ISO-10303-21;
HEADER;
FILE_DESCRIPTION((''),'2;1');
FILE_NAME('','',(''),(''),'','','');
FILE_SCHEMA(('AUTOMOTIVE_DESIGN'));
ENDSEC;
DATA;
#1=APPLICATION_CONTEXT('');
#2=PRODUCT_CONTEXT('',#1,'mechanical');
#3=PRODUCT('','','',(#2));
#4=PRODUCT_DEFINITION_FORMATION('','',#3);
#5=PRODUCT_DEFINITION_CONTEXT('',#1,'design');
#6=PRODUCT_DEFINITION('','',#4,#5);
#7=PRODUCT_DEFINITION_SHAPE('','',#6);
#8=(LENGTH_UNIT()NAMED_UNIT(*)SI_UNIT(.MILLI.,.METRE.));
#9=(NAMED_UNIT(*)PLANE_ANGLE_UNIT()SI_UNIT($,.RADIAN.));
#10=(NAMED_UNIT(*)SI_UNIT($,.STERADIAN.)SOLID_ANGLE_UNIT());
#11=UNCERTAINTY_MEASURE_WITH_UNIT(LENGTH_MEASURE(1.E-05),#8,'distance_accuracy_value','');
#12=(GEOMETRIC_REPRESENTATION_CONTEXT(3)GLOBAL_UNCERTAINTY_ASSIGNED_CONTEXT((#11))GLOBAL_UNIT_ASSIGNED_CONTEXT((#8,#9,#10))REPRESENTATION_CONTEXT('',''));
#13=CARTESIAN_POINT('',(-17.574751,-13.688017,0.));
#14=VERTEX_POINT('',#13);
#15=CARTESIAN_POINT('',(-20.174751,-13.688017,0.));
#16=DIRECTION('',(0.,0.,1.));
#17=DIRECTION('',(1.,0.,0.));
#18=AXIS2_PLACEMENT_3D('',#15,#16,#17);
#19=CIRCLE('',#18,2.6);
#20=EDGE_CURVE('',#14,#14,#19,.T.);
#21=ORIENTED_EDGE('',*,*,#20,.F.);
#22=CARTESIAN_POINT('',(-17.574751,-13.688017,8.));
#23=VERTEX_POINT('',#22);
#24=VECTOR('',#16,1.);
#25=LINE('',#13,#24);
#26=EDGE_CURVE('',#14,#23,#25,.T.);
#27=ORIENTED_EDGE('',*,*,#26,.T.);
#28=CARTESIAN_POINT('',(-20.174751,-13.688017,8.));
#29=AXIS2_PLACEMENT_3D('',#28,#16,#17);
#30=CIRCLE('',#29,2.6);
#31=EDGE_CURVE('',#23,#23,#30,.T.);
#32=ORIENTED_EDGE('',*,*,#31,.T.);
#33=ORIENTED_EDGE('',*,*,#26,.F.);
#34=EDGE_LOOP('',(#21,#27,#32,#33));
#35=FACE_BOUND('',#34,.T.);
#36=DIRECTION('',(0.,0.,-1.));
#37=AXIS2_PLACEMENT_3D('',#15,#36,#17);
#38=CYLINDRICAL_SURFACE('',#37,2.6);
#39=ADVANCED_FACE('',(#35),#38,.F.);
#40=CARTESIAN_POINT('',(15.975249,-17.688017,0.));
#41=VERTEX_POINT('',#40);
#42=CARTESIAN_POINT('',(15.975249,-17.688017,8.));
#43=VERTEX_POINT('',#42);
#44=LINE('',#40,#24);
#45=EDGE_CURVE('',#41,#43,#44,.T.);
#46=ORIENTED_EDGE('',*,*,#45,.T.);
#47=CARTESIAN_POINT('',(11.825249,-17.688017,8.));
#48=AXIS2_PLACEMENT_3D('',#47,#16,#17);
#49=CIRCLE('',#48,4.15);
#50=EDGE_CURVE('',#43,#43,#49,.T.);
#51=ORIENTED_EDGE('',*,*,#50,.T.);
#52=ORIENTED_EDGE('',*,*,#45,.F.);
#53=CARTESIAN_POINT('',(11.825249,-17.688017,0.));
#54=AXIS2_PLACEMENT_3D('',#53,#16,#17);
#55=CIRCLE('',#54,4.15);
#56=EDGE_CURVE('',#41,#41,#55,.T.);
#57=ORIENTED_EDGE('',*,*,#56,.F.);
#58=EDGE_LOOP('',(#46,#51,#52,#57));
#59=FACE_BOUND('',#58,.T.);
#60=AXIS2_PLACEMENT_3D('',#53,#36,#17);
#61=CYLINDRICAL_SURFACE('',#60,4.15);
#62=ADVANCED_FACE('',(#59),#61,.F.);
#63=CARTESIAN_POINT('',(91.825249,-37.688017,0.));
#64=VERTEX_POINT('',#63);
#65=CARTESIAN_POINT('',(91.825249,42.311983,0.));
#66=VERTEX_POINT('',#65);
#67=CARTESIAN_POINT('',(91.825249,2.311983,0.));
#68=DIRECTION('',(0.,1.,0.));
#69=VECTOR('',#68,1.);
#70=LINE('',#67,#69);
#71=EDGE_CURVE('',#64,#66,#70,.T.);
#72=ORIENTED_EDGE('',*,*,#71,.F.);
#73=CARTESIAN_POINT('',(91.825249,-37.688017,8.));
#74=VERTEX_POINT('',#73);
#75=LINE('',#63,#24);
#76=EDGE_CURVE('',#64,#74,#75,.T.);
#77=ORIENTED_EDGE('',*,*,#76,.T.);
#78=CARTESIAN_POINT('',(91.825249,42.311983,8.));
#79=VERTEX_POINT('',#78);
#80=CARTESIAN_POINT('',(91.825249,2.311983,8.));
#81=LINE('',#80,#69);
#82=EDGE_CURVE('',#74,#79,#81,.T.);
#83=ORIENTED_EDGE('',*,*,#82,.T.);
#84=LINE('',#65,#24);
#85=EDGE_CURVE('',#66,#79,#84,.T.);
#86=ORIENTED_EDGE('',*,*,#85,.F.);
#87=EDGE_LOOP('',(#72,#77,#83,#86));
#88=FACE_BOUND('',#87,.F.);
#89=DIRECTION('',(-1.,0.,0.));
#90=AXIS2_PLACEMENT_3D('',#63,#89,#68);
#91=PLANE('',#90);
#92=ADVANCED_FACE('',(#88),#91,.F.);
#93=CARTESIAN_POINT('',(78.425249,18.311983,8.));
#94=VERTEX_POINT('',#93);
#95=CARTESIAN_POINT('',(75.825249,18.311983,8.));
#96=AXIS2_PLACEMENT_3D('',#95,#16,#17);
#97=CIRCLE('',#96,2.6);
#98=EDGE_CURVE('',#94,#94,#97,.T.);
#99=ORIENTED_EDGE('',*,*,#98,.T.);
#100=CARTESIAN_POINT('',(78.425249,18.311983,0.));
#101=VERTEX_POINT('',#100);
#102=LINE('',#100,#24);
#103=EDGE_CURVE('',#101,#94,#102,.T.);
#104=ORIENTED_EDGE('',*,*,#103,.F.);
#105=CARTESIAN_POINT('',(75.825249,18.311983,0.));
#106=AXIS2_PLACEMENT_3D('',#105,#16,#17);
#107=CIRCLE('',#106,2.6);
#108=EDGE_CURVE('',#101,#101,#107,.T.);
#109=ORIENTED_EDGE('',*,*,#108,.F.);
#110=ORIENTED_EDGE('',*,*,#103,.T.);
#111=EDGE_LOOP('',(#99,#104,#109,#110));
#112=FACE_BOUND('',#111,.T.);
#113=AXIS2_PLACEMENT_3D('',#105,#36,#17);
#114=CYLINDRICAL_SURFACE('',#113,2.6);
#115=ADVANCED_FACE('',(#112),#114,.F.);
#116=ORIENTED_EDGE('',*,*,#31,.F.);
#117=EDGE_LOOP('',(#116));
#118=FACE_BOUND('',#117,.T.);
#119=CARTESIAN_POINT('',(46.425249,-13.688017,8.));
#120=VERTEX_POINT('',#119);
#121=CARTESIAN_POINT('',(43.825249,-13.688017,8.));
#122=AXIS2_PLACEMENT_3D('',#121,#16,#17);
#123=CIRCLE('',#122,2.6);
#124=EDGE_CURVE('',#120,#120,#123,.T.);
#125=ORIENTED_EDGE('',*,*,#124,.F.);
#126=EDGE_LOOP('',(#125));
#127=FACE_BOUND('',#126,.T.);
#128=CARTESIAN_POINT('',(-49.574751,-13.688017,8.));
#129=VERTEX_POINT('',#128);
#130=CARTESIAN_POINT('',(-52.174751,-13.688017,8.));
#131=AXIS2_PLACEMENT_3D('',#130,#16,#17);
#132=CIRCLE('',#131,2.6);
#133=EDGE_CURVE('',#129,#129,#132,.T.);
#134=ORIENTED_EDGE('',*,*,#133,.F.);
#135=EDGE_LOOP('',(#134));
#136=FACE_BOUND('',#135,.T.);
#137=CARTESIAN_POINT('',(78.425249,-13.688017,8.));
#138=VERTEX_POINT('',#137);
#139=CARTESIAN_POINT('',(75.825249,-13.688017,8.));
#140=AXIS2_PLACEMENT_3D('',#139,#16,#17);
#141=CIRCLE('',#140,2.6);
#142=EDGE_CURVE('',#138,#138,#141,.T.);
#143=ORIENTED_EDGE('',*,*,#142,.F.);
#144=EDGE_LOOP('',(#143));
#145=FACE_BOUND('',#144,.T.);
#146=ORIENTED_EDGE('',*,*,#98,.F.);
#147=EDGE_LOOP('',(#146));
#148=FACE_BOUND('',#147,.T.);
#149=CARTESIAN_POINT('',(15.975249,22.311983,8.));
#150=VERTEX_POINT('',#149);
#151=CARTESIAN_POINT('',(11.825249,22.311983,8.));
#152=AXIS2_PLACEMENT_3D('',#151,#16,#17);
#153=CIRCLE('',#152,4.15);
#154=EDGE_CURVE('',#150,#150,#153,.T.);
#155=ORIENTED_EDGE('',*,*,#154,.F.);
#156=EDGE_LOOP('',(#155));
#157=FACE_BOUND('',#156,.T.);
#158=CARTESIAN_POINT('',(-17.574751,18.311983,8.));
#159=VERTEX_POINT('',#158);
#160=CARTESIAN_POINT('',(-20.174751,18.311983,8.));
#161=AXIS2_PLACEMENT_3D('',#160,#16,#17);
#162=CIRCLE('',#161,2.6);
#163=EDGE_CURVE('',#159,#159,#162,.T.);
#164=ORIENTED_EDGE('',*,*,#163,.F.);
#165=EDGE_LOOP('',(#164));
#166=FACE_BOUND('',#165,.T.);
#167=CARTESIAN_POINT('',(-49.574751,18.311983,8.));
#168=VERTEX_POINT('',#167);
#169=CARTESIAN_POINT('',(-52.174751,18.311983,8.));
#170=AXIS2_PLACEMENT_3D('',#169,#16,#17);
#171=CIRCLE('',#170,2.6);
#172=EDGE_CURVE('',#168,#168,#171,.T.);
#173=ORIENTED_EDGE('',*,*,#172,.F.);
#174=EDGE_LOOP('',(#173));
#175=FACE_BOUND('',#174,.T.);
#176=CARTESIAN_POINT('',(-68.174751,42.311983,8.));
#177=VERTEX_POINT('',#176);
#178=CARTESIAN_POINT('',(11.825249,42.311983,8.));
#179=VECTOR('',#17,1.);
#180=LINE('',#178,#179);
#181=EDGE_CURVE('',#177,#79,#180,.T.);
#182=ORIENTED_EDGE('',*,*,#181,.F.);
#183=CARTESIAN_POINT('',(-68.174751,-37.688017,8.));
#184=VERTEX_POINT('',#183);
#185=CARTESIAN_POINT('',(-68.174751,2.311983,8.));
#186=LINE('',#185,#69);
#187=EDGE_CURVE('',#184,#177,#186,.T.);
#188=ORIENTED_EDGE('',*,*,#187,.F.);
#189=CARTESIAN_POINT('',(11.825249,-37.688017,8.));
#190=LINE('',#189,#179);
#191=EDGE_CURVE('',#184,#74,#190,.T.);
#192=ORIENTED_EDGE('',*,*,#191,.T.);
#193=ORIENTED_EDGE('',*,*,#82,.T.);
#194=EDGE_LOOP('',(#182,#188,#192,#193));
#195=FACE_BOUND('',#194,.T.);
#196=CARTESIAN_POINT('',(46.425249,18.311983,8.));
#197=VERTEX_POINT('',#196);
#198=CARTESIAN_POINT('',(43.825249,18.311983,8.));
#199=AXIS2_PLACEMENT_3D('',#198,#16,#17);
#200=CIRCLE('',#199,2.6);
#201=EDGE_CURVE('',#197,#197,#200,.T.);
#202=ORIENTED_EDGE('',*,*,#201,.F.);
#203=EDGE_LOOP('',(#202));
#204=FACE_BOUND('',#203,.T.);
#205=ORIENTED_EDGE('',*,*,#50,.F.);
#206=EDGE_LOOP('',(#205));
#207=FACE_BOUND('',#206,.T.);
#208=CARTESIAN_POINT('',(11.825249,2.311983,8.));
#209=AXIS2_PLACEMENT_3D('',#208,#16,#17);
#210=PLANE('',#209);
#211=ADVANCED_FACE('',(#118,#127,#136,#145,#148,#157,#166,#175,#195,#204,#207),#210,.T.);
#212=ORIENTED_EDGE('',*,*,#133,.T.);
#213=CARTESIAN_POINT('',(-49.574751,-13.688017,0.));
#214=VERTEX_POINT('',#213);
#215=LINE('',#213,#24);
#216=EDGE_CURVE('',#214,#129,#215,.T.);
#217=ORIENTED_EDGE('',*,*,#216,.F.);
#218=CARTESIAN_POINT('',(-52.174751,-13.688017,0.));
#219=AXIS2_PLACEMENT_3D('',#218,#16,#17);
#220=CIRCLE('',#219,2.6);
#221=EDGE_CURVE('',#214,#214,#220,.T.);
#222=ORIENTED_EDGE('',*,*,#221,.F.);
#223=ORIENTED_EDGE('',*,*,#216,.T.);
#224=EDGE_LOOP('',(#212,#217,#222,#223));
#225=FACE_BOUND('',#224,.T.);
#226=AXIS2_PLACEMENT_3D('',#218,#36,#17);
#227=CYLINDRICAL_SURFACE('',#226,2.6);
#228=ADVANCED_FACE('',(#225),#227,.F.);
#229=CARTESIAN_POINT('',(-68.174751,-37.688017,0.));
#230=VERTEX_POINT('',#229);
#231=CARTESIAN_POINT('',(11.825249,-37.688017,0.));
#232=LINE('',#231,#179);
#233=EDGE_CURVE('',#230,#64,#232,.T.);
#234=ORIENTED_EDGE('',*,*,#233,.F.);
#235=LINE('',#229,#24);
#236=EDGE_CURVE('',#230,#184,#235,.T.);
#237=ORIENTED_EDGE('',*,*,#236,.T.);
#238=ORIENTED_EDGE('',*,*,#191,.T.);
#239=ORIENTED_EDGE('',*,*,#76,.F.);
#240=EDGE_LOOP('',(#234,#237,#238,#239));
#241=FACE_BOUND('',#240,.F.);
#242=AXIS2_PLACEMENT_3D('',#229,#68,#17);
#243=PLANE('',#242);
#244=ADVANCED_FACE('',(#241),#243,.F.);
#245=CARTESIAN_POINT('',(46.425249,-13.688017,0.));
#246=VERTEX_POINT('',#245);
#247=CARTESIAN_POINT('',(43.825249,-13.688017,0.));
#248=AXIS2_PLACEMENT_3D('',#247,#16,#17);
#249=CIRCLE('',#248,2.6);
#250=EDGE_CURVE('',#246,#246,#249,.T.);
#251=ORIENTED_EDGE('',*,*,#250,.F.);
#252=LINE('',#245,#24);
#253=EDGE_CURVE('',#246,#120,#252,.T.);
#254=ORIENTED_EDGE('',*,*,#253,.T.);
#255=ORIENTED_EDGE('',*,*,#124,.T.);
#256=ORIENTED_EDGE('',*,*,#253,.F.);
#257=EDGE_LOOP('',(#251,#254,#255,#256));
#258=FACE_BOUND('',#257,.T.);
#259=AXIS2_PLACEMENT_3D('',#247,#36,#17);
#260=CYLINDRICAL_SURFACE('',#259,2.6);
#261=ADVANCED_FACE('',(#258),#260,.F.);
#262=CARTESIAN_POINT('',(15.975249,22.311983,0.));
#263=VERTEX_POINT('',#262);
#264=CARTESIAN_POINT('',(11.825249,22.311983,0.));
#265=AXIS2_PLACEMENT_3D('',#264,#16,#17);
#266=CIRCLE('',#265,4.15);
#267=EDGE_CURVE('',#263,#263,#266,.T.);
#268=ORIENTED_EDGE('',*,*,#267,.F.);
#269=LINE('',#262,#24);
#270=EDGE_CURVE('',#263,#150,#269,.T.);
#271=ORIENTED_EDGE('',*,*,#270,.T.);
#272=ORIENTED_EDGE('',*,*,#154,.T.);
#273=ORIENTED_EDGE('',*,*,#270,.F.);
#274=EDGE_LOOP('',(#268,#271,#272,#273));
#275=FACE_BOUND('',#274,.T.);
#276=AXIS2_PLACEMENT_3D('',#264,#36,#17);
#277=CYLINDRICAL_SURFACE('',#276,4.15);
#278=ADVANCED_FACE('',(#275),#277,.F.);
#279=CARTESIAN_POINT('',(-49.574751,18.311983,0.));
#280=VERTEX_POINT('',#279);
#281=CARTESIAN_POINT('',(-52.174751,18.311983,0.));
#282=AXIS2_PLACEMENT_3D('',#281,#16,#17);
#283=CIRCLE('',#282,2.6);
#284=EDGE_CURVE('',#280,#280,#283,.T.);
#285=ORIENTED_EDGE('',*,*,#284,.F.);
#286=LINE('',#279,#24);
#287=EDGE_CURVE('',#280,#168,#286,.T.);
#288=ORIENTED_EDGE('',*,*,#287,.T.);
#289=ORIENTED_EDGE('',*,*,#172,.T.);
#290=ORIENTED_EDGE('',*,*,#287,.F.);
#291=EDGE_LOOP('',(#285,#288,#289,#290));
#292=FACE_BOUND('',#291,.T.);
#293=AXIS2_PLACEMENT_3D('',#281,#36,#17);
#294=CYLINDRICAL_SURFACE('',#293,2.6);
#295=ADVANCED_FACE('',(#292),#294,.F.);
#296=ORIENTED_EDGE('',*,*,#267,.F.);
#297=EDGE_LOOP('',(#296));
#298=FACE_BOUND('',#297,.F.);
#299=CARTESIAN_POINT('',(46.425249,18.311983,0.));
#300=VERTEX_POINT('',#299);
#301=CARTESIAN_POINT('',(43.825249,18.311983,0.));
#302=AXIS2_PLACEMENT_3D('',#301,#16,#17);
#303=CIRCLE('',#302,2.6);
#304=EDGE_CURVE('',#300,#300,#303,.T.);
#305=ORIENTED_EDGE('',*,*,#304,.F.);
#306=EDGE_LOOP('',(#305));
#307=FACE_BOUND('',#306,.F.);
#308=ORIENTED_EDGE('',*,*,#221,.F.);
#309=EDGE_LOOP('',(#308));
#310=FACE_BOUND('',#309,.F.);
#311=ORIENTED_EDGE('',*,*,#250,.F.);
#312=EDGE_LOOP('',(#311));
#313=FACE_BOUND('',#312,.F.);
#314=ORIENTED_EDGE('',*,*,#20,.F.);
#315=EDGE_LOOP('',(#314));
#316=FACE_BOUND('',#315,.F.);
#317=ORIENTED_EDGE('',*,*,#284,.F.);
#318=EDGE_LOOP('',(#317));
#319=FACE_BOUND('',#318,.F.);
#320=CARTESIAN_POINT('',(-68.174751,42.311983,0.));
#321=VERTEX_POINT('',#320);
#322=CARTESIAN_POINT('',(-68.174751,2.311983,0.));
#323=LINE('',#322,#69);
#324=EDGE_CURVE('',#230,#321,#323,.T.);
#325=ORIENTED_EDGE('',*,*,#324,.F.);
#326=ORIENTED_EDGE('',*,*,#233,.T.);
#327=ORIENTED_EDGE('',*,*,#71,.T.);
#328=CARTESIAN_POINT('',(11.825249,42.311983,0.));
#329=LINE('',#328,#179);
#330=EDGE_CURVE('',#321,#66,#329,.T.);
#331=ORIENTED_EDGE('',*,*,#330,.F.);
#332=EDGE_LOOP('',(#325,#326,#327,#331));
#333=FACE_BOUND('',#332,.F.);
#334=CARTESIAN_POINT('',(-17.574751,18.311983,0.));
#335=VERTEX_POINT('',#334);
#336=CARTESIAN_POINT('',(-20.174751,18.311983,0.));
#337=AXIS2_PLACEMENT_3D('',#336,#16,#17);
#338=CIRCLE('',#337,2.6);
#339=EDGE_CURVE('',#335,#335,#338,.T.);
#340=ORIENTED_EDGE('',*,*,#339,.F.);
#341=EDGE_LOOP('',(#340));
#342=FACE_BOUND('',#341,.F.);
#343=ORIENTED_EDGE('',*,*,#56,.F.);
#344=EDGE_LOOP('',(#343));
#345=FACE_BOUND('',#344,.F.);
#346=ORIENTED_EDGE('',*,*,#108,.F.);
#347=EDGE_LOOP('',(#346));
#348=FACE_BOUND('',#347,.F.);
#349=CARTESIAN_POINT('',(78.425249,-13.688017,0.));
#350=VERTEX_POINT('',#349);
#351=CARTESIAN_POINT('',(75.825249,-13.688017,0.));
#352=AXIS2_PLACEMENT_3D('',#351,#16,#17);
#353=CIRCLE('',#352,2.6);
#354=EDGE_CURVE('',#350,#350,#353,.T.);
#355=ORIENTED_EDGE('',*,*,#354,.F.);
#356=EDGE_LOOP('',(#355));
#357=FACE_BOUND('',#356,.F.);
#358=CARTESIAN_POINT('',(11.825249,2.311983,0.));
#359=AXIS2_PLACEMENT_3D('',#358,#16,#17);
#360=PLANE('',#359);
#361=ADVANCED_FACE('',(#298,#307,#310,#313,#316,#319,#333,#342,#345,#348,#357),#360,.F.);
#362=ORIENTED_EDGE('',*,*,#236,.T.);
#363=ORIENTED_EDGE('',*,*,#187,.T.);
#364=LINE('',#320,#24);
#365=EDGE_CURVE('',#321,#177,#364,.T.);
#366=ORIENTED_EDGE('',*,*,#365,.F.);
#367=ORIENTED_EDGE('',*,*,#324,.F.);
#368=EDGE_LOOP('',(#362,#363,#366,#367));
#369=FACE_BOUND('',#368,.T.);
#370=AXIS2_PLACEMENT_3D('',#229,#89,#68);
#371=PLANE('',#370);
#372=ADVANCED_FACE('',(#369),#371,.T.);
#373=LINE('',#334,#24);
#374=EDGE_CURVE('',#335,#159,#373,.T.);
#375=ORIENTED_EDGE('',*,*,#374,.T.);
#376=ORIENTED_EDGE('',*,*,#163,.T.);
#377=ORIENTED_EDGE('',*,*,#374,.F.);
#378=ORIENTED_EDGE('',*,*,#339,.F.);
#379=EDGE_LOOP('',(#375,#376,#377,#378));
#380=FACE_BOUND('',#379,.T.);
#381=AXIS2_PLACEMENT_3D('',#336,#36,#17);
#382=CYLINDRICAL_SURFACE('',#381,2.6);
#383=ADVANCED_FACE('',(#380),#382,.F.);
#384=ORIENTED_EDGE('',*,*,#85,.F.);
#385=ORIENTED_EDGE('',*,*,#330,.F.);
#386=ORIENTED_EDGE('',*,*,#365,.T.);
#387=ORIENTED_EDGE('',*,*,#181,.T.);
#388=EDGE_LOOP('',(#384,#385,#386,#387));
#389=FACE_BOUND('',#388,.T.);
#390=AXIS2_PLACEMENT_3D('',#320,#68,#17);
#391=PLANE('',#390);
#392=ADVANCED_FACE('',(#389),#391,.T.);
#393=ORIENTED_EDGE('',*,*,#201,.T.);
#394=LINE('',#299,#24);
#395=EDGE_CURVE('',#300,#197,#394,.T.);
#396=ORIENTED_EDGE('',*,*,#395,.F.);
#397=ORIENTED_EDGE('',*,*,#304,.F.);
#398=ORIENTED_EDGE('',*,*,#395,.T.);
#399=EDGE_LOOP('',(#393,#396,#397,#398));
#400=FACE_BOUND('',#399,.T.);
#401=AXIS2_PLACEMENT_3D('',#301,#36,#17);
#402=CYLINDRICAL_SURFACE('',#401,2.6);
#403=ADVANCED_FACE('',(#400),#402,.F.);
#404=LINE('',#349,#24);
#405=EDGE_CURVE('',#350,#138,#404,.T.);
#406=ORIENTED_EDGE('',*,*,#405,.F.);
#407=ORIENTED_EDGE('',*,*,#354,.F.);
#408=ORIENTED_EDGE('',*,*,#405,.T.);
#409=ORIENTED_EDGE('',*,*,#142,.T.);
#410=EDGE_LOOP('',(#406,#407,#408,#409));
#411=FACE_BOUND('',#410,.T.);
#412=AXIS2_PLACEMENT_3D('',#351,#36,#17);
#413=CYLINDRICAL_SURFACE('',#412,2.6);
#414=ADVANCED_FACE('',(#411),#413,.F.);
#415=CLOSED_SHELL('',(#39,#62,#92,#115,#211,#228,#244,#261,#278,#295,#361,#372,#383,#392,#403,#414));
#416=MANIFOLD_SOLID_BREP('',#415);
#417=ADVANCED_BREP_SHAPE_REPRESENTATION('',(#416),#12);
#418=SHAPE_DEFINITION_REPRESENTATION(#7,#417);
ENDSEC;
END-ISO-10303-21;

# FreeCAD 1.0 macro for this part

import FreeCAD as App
import Part
import Sketcher

V = App.Vector


def add_polygon(sketch, points):
    """Adds a closed chain of lines whose ends are joined by coincident constraints."""
    first, n = sketch.GeometryCount, len(points)
    for a, b in zip(points, points[1:] + points[:1]):
        sketch.addGeometry(Part.LineSegment(App.Vector(*a, 0), App.Vector(*b, 0)), False)
    for i in range(n):
        sketch.addConstraint(Sketcher.Constraint("Coincident", first + i, 2, first + (i + 1) % n, 1))

doc = App.newDocument("Part")
params = doc.addObject("Spreadsheet::Sheet", "Params")
for row, (alias, value) in enumerate([
    ("sketch1_diameter", "5.2 mm"),
    ("sketch1_diameter2", "8.3 mm"),
    ("sketch1_width", "160 mm"),
    ("sketch1_height", "80 mm"),
    ("pad1_length", "8 mm"),
], start=1):
    params.set(f"A{row}", alias)
    params.set(f"B{row}", "=" + value)
    params.setAlias(f"B{row}", alias)

body = doc.addObject("PartDesign::Body", "Body")

sketch1 = body.newObject("Sketcher::SketchObject", "Sketch")
sketch1.AttachmentSupport = (doc.getObject("XY_Plane"), [""])
sketch1.MapMode = "FlatFace"
add_polygon(sketch1, [(-68.174751, 42.311983), (-68.174751, -37.688017), (91.825249, -37.688017), (91.825249, 42.311983)])
sketch1.addGeometry(Part.Circle(V(-52.174751, -13.688017, 0), V(0, 0, 1), 2.6), False)
sketch1.addGeometry(Part.Circle(V(-20.174751, -13.688017, 0), V(0, 0, 1), 2.6), False)
sketch1.addGeometry(Part.Circle(V(11.825249, -17.688017, 0), V(0, 0, 1), 4.15), False)
sketch1.addGeometry(Part.Circle(V(43.825249, -13.688017, 0), V(0, 0, 1), 2.6), False)
sketch1.addGeometry(Part.Circle(V(75.825249, -13.688017, 0), V(0, 0, 1), 2.6), False)
sketch1.addGeometry(Part.Circle(V(-52.174751, 18.311983, 0), V(0, 0, 1), 2.6), False)
sketch1.addGeometry(Part.Circle(V(-20.174751, 18.311983, 0), V(0, 0, 1), 2.6), False)
sketch1.addGeometry(Part.Circle(V(43.825249, 18.311983, 0), V(0, 0, 1), 2.6), False)
sketch1.addGeometry(Part.Circle(V(11.825249, 22.311983, 0), V(0, 0, 1), 4.15), False)
sketch1.addGeometry(Part.Circle(V(75.825249, 18.311983, 0), V(0, 0, 1), 2.6), False)
sketch1.addConstraint(Sketcher.Constraint("Vertical", 0))
sketch1.addConstraint(Sketcher.Constraint("Horizontal", 1))
sketch1.addConstraint(Sketcher.Constraint("Vertical", 2))
sketch1.addConstraint(Sketcher.Constraint("Horizontal", 3))
sketch1.addConstraint(Sketcher.Constraint("Equal", 4, 5))
sketch1.addConstraint(Sketcher.Constraint("Equal", 5, 7))
sketch1.addConstraint(Sketcher.Constraint("Equal", 7, 8))
sketch1.addConstraint(Sketcher.Constraint("Equal", 8, 9))
sketch1.addConstraint(Sketcher.Constraint("Equal", 9, 10))
sketch1.addConstraint(Sketcher.Constraint("Equal", 10, 11))
sketch1.addConstraint(Sketcher.Constraint("Equal", 6, 12))
sketch1.addConstraint(Sketcher.Constraint("Equal", 11, 13))
sketch1.addConstraint(Sketcher.Constraint("Horizontal", 4, 3, 5, 3))
sketch1.addConstraint(Sketcher.Constraint("Horizontal", 5, 3, 7, 3))
sketch1.addConstraint(Sketcher.Constraint("Horizontal", 7, 3, 8, 3))
sketch1.addConstraint(Sketcher.Constraint("Horizontal", 9, 3, 10, 3))
sketch1.addConstraint(Sketcher.Constraint("Horizontal", 10, 3, 11, 3))
sketch1.addConstraint(Sketcher.Constraint("Horizontal", 11, 3, 13, 3))
sketch1.addConstraint(Sketcher.Constraint("Vertical", 4, 3, 9, 3))
sketch1.addConstraint(Sketcher.Constraint("Vertical", 5, 3, 10, 3))
sketch1.addConstraint(Sketcher.Constraint("Vertical", 7, 3, 11, 3))
sketch1.addConstraint(Sketcher.Constraint("Vertical", 6, 3, 12, 3))
sketch1.addConstraint(Sketcher.Constraint("Vertical", 8, 3, 13, 3))
sketch1.addConstraint(Sketcher.Constraint("Diameter", 4, 5.2))
sketch1.addConstraint(Sketcher.Constraint("Diameter", 6, 8.3))
sketch1.addConstraint(Sketcher.Constraint("DistanceX", 1, 1, 1, 2, 160.0))
sketch1.addConstraint(Sketcher.Constraint("DistanceY", 0, 2, 0, 1, 80.0))
sketch1.addConstraint(Sketcher.Constraint("DistanceX", 4, 3, 5, 3, 32.0))
sketch1.addConstraint(Sketcher.Constraint("DistanceX", 5, 3, 6, 3, 32.0))
sketch1.addConstraint(Sketcher.Constraint("DistanceY", 6, 3, 5, 3, 4.0))
sketch1.addConstraint(Sketcher.Constraint("DistanceX", 6, 3, 7, 3, 32.0))
sketch1.addConstraint(Sketcher.Constraint("DistanceX", 7, 3, 8, 3, 32.0))
sketch1.addConstraint(Sketcher.Constraint("DistanceY", 4, 3, 9, 3, 32.0))
sketch1.addConstraint(Sketcher.Constraint("DistanceY", 10, 3, 12, 3, 4.0))
sketch1.addConstraint(Sketcher.Constraint("DistanceX", 0, 2, 4, 3, 16.0))
sketch1.addConstraint(Sketcher.Constraint("DistanceY", 0, 2, 4, 3, 24.0))
sketch1.addConstraint(Sketcher.Constraint("DistanceX", 4, 3, -1, 1, 52.174751))
sketch1.addConstraint(Sketcher.Constraint("DistanceY", 4, 3, -1, 1, 13.688017))
sketch1.setExpression("Constraints[27]", "Params.sketch1_diameter")
sketch1.setExpression("Constraints[28]", "Params.sketch1_diameter2")
sketch1.setExpression("Constraints[29]", "Params.sketch1_width")
sketch1.setExpression("Constraints[30]", "Params.sketch1_height")
pad1 = body.newObject("PartDesign::Pad", "Pad")
pad1.Profile = sketch1
pad1.setExpression("Length", "Params.pad1_length")

doc.recompute()
